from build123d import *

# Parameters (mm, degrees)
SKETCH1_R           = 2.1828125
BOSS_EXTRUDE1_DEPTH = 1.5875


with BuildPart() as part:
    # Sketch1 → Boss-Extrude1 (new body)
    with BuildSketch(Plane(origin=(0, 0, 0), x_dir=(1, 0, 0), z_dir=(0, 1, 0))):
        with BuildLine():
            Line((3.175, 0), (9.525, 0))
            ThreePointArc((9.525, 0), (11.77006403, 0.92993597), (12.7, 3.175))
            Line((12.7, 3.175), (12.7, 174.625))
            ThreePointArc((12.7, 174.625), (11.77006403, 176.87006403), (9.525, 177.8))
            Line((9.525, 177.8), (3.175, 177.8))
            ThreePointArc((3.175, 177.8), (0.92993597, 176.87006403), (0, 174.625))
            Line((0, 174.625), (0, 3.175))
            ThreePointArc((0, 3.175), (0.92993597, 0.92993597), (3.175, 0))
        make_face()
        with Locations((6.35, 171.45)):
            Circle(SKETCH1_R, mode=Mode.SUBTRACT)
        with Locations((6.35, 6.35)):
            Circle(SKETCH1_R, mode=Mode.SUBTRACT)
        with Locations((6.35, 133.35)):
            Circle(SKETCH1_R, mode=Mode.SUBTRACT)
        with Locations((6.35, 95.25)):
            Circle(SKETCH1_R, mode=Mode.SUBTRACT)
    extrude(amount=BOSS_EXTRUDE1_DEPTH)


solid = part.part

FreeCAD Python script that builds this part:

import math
import FreeCAD as App
import Part
import Sketcher
from FreeCAD import Vector
Q = App.Units.Quantity

doc = App.newDocument("Part")
body = doc.addObject("PartDesign::Body", "Body")

# Sketch on XZ plane
sketch1 = doc.addObject("Sketcher::SketchObject", "Sketch")
body.addObject(sketch1)
sketch1.AttachmentSupport = (doc.XZ_Plane, [""])
sketch1.MapMode = "FlatFace"
sketch1.addGeometry([
    Part.LineSegment(Vector(3.2, 0, 0), Vector(9.5, 0, 0)),  # 0
    Part.ArcOfCircle(Part.Circle(Vector(9.5, -3.2, 0), Vector(0, 0, 1), 3.2), math.radians(0), math.radians(90)),  # 1
    Part.LineSegment(Vector(12.7, -3.2, 0), Vector(12.7, -174.6, 0)),  # 2
    Part.ArcOfCircle(Part.Circle(Vector(9.5, -174.6, 0), Vector(0, 0, 1), 3.2), math.radians(-90), math.radians(0)),  # 3
    Part.LineSegment(Vector(9.5, -177.8, 0), Vector(3.2, -177.8, 0)),  # 4
    Part.ArcOfCircle(Part.Circle(Vector(3.2, -174.6, 0), Vector(0, 0, 1), 3.2), math.radians(-180), math.radians(-90)),  # 5
    Part.LineSegment(Vector(0, -174.6, 0), Vector(0, -3.2, 0)),  # 6
    Part.ArcOfCircle(Part.Circle(Vector(3.2, -3.2, 0), Vector(0, 0, 1), 3.2), math.radians(90), math.radians(180)),  # 7
    Part.Circle(Vector(6.3, -6.3, 0), Vector(0, 0, 1), 2.2),  # 8
    Part.Circle(Vector(6.3, -95.2, 0), Vector(0, 0, 1), 2.2),  # 9
    Part.Circle(Vector(6.3, -133.3, 0), Vector(0, 0, 1), 2.2),  # 10
    Part.Circle(Vector(6.3, -171.4, 0), Vector(0, 0, 1), 2.2),  # 11
], False)
sketch1.addConstraint([
    Sketcher.Constraint("Tangent", 0, 2, 1, 2),
    Sketcher.Constraint("Tangent", 1, 1, 2, 1),
    Sketcher.Constraint("Tangent", 2, 2, 3, 2),
    Sketcher.Constraint("Tangent", 3, 1, 4, 1),
    Sketcher.Constraint("Tangent", 4, 2, 5, 2),
    Sketcher.Constraint("Tangent", 5, 1, 6, 1),
    Sketcher.Constraint("Tangent", 6, 2, 7, 2),
    Sketcher.Constraint("Tangent", 7, 1, 0, 1),
    Sketcher.Constraint("Horizontal", 0),
    Sketcher.Constraint("Vertical", 2),
    Sketcher.Constraint("Horizontal", 4),
    Sketcher.Constraint("Vertical", 6),
    Sketcher.Constraint("Equal", 1, 3),
    Sketcher.Constraint("Equal", 3, 5),
    Sketcher.Constraint("Equal", 5, 7),
    Sketcher.Constraint("Equal", 8, 9),
    Sketcher.Constraint("Equal", 9, 10),
    Sketcher.Constraint("Equal", 10, 11),
    Sketcher.Constraint("PointOnObject", 0, 2, -1),
    Sketcher.Constraint("PointOnObject", 5, 1, -2),
    Sketcher.Constraint("Vertical", 8, 3, 9, 3),
    Sketcher.Constraint("Vertical", 9, 3, 10, 3),
    Sketcher.Constraint("Vertical", 10, 3, 11, 3),
    Sketcher.Constraint("Diameter", 8, Q("0.171875 in")),
    Sketcher.Constraint("DistanceY", 3, 1, -1, 1, Q("7 in")),
    Sketcher.Constraint("Radius", 1, Q("0.125 in")),
    Sketcher.Constraint("DistanceY", 10, 3, 8, 3, Q("5 in")),
    Sketcher.Constraint("DistanceY", 11, 3, 9, 3, Q("3 in")),
    Sketcher.Constraint("DistanceX", 0, 1, 0, 2, Q("0.25 in")),
    Sketcher.Constraint("DistanceY", 9, 3, 8, 3, Q("3.5 in")),
    Sketcher.Constraint("DistanceX", -1, 1, 8, 3, Q("0.25 in")),
    Sketcher.Constraint("DistanceY", 8, 3, -1, 1, Q("0.25 in")),
])
pad1 = doc.addObject("PartDesign::Pad", "Pad")
body.addObject(pad1)
pad1.Profile = sketch1
pad1.Length = Q("0.0625 in")
pad1.Reversed = True

doc.recompute()
